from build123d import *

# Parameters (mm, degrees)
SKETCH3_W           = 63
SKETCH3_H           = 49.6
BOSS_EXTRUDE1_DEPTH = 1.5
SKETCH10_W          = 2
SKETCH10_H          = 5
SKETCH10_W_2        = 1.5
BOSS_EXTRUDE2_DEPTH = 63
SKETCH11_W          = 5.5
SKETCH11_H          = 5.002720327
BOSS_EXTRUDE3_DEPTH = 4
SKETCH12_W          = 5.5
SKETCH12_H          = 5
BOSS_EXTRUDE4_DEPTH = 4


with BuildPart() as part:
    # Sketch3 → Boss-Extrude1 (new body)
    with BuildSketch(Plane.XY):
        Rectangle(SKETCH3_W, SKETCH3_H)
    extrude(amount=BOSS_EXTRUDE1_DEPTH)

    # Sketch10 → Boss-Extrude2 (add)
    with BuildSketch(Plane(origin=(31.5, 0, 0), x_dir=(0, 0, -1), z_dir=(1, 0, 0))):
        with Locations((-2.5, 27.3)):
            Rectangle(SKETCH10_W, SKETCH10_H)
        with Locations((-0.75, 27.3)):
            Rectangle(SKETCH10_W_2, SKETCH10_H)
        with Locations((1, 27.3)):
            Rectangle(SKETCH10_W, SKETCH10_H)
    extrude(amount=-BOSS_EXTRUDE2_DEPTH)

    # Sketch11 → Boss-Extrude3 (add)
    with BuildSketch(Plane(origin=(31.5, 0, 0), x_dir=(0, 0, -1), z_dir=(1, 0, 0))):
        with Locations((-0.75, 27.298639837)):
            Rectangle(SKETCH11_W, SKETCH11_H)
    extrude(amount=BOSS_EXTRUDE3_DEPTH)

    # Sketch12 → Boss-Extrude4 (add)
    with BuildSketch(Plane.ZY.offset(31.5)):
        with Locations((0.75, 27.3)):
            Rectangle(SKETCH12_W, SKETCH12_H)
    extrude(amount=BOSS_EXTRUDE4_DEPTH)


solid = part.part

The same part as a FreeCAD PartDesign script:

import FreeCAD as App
import Part
import Sketcher
from FreeCAD import Vector
Q = App.Units.Quantity

doc = App.newDocument("Part")
body = doc.addObject("PartDesign::Body", "Body")

sketch1 = body.newObject("Sketcher::SketchObject", "Sketch")
sketch1.AttachmentSupport = (doc.getObject("XY_Plane"), [""])
sketch1.MapMode = "FlatFace"
sketch1.addGeometry(Part.LineSegment(Vector(-31.5, 24.8, 0), Vector(-31.5, -24.8, 0)), False)
sketch1.addGeometry(Part.LineSegment(Vector(-31.5, -24.8, 0), Vector(31.5, -24.8, 0)), False)
sketch1.addGeometry(Part.LineSegment(Vector(31.5, -24.8, 0), Vector(31.5, 24.8, 0)), False)
sketch1.addGeometry(Part.LineSegment(Vector(31.5, 24.8, 0), Vector(-31.5, 24.8, 0)), False)
sketch1.addConstraint(Sketcher.Constraint("Coincident", 0, 2, 1, 1))
sketch1.addConstraint(Sketcher.Constraint("Coincident", 1, 2, 2, 1))
sketch1.addConstraint(Sketcher.Constraint("Coincident", 2, 2, 3, 1))
sketch1.addConstraint(Sketcher.Constraint("Coincident", 3, 2, 0, 1))
sketch1.addConstraint(Sketcher.Constraint("Vertical", 0))
sketch1.addConstraint(Sketcher.Constraint("Horizontal", 1))
sketch1.addConstraint(Sketcher.Constraint("Vertical", 2))
sketch1.addConstraint(Sketcher.Constraint("Horizontal", 3))
sketch1.addConstraint(Sketcher.Constraint("Symmetric", 0, 2, 2, 2, -1, 1))
sketch1.addConstraint(Sketcher.Constraint("DistanceX", 1, 1, 1, 2, Q("63 mm")))
sketch1.addConstraint(Sketcher.Constraint("DistanceY", 0, 2, 0, 1, Q("49.6 mm")))
pad1 = body.newObject("PartDesign::Pad", "Pad")
pad1.Profile = sketch1
pad1.Length = 1.5

sketch2 = body.newObject("Sketcher::SketchObject", "Sketch001")
sketch2.AttachmentSupport = (doc.getObject("YZ_Plane"), [""])
sketch2.MapMode = "FlatFace"
sketch2.AttachmentOffset = App.Placement(Vector(0, 0, 31.5), App.Rotation())
sketch2.addGeometry(Part.LineSegment(Vector(29.8, 3.5, 0), Vector(24.8, 3.5, 0)), False)
sketch2.addGeometry(Part.LineSegment(Vector(24.8, 3.5, 0), Vector(24.8, -2, 0)), False)
sketch2.addGeometry(Part.LineSegment(Vector(24.8, -2, 0), Vector(29.8, -2, 0)), False)
sketch2.addGeometry(Part.LineSegment(Vector(29.8, -2, 0), Vector(29.8, 3.5, 0)), False)
sketch2.addConstraint(Sketcher.Constraint("Coincident", 0, 2, 1, 1))
sketch2.addConstraint(Sketcher.Constraint("Coincident", 1, 2, 2, 1))
sketch2.addConstraint(Sketcher.Constraint("Coincident", 2, 2, 3, 1))
sketch2.addConstraint(Sketcher.Constraint("Coincident", 3, 2, 0, 1))
sketch2.addConstraint(Sketcher.Constraint("Horizontal", 0))
sketch2.addConstraint(Sketcher.Constraint("Vertical", 1))
sketch2.addConstraint(Sketcher.Constraint("Horizontal", 2))
sketch2.addConstraint(Sketcher.Constraint("Vertical", 3))
sketch2.addConstraint(Sketcher.Constraint("DistanceX", 0, 2, 0, 1, Q("5 mm")))
sketch2.addConstraint(Sketcher.Constraint("DistanceY", 1, 2, 1, 1, Q("5.5 mm")))
sketch2.addConstraint(Sketcher.Constraint("DistanceY", 1, 2, -1, 1, Q("2 mm")))
sketch2.addConstraint(Sketcher.Constraint("DistanceX", -1, 1, 0, 2, Q("24.8 mm")))
pad2 = body.newObject("PartDesign::Pad", "Pad001")
pad2.Profile = sketch2
pad2.Length = 63
pad2.Reversed = True

sketch3 = body.newObject("Sketcher::SketchObject", "Sketch002")
sketch3.AttachmentSupport = (doc.getObject("YZ_Plane"), [""])
sketch3.MapMode = "FlatFace"
sketch3.AttachmentOffset = App.Placement(Vector(0, 0, 31.5), App.Rotation())
sketch3.addGeometry(Part.LineSegment(Vector(29.8, 3.5, 0), Vector(24.79728, 3.5, 0)), False)
sketch3.addGeometry(Part.LineSegment(Vector(24.79728, 3.5, 0), Vector(24.79728, -2, 0)), False)
sketch3.addGeometry(Part.LineSegment(Vector(24.79728, -2, 0), Vector(29.8, -2, 0)), False)
sketch3.addGeometry(Part.LineSegment(Vector(29.8, -2, 0), Vector(29.8, 3.5, 0)), False)
sketch3.addConstraint(Sketcher.Constraint("Coincident", 0, 2, 1, 1))
sketch3.addConstraint(Sketcher.Constraint("Coincident", 1, 2, 2, 1))
sketch3.addConstraint(Sketcher.Constraint("Coincident", 2, 2, 3, 1))
sketch3.addConstraint(Sketcher.Constraint("Coincident", 3, 2, 0, 1))
sketch3.addConstraint(Sketcher.Constraint("Horizontal", 0))
sketch3.addConstraint(Sketcher.Constraint("Vertical", 1))
sketch3.addConstraint(Sketcher.Constraint("Horizontal", 2))
sketch3.addConstraint(Sketcher.Constraint("Vertical", 3))
sketch3.addConstraint(Sketcher.Constraint("DistanceY", 1, 2, 1, 1, Q("5.5 mm")))
sketch3.addConstraint(Sketcher.Constraint("DistanceY", 1, 2, -1, 1, Q("2 mm")))
sketch3.addConstraint(Sketcher.Constraint("DistanceX", -1, 1, 2, 2, Q("29.8 mm")))
sketch3.addConstraint(Sketcher.Constraint("DistanceX", 0, 2, 0, 1, Q("5.00272 mm")))
pad3 = body.newObject("PartDesign::Pad", "Pad002")
pad3.Profile = sketch3
pad3.Length = 4

sketch4 = body.newObject("Sketcher::SketchObject", "Sketch003")
sketch4.AttachmentSupport = (doc.getObject("YZ_Plane"), [""])
sketch4.MapMode = "FlatFace"
sketch4.AttachmentOffset = App.Placement(Vector(0, 0, -31.5), App.Rotation())
sketch4.addGeometry(Part.LineSegment(Vector(29.8, -2, 0), Vector(24.8, -2, 0)), False)
sketch4.addGeometry(Part.LineSegment(Vector(24.8, -2, 0), Vector(24.8, 3.5, 0)), False)
sketch4.addGeometry(Part.LineSegment(Vector(24.8, 3.5, 0), Vector(29.8, 3.5, 0)), False)
sketch4.addGeometry(Part.LineSegment(Vector(29.8, 3.5, 0), Vector(29.8, -2, 0)), False)
sketch4.addConstraint(Sketcher.Constraint("Coincident", 0, 2, 1, 1))
sketch4.addConstraint(Sketcher.Constraint("Coincident", 1, 2, 2, 1))
sketch4.addConstraint(Sketcher.Constraint("Coincident", 2, 2, 3, 1))
sketch4.addConstraint(Sketcher.Constraint("Coincident", 3, 2, 0, 1))
sketch4.addConstraint(Sketcher.Constraint("Horizontal", 0))
sketch4.addConstraint(Sketcher.Constraint("Vertical", 1))
sketch4.addConstraint(Sketcher.Constraint("Horizontal", 2))
sketch4.addConstraint(Sketcher.Constraint("Vertical", 3))
sketch4.addConstraint(Sketcher.Constraint("DistanceX", 0, 2, 0, 1, Q("5 mm")))
sketch4.addConstraint(Sketcher.Constraint("DistanceY", 1, 1, 1, 2, Q("5.5 mm")))
sketch4.addConstraint(Sketcher.Constraint("DistanceY", 0, 2, -1, 1, Q("2 mm")))
sketch4.addConstraint(Sketcher.Constraint("DistanceX", -1, 1, 0, 2, Q("24.8 mm")))
pad4 = body.newObject("PartDesign::Pad", "Pad003")
pad4.Profile = sketch4
pad4.Length = 4
pad4.Reversed = True

doc.recompute()
